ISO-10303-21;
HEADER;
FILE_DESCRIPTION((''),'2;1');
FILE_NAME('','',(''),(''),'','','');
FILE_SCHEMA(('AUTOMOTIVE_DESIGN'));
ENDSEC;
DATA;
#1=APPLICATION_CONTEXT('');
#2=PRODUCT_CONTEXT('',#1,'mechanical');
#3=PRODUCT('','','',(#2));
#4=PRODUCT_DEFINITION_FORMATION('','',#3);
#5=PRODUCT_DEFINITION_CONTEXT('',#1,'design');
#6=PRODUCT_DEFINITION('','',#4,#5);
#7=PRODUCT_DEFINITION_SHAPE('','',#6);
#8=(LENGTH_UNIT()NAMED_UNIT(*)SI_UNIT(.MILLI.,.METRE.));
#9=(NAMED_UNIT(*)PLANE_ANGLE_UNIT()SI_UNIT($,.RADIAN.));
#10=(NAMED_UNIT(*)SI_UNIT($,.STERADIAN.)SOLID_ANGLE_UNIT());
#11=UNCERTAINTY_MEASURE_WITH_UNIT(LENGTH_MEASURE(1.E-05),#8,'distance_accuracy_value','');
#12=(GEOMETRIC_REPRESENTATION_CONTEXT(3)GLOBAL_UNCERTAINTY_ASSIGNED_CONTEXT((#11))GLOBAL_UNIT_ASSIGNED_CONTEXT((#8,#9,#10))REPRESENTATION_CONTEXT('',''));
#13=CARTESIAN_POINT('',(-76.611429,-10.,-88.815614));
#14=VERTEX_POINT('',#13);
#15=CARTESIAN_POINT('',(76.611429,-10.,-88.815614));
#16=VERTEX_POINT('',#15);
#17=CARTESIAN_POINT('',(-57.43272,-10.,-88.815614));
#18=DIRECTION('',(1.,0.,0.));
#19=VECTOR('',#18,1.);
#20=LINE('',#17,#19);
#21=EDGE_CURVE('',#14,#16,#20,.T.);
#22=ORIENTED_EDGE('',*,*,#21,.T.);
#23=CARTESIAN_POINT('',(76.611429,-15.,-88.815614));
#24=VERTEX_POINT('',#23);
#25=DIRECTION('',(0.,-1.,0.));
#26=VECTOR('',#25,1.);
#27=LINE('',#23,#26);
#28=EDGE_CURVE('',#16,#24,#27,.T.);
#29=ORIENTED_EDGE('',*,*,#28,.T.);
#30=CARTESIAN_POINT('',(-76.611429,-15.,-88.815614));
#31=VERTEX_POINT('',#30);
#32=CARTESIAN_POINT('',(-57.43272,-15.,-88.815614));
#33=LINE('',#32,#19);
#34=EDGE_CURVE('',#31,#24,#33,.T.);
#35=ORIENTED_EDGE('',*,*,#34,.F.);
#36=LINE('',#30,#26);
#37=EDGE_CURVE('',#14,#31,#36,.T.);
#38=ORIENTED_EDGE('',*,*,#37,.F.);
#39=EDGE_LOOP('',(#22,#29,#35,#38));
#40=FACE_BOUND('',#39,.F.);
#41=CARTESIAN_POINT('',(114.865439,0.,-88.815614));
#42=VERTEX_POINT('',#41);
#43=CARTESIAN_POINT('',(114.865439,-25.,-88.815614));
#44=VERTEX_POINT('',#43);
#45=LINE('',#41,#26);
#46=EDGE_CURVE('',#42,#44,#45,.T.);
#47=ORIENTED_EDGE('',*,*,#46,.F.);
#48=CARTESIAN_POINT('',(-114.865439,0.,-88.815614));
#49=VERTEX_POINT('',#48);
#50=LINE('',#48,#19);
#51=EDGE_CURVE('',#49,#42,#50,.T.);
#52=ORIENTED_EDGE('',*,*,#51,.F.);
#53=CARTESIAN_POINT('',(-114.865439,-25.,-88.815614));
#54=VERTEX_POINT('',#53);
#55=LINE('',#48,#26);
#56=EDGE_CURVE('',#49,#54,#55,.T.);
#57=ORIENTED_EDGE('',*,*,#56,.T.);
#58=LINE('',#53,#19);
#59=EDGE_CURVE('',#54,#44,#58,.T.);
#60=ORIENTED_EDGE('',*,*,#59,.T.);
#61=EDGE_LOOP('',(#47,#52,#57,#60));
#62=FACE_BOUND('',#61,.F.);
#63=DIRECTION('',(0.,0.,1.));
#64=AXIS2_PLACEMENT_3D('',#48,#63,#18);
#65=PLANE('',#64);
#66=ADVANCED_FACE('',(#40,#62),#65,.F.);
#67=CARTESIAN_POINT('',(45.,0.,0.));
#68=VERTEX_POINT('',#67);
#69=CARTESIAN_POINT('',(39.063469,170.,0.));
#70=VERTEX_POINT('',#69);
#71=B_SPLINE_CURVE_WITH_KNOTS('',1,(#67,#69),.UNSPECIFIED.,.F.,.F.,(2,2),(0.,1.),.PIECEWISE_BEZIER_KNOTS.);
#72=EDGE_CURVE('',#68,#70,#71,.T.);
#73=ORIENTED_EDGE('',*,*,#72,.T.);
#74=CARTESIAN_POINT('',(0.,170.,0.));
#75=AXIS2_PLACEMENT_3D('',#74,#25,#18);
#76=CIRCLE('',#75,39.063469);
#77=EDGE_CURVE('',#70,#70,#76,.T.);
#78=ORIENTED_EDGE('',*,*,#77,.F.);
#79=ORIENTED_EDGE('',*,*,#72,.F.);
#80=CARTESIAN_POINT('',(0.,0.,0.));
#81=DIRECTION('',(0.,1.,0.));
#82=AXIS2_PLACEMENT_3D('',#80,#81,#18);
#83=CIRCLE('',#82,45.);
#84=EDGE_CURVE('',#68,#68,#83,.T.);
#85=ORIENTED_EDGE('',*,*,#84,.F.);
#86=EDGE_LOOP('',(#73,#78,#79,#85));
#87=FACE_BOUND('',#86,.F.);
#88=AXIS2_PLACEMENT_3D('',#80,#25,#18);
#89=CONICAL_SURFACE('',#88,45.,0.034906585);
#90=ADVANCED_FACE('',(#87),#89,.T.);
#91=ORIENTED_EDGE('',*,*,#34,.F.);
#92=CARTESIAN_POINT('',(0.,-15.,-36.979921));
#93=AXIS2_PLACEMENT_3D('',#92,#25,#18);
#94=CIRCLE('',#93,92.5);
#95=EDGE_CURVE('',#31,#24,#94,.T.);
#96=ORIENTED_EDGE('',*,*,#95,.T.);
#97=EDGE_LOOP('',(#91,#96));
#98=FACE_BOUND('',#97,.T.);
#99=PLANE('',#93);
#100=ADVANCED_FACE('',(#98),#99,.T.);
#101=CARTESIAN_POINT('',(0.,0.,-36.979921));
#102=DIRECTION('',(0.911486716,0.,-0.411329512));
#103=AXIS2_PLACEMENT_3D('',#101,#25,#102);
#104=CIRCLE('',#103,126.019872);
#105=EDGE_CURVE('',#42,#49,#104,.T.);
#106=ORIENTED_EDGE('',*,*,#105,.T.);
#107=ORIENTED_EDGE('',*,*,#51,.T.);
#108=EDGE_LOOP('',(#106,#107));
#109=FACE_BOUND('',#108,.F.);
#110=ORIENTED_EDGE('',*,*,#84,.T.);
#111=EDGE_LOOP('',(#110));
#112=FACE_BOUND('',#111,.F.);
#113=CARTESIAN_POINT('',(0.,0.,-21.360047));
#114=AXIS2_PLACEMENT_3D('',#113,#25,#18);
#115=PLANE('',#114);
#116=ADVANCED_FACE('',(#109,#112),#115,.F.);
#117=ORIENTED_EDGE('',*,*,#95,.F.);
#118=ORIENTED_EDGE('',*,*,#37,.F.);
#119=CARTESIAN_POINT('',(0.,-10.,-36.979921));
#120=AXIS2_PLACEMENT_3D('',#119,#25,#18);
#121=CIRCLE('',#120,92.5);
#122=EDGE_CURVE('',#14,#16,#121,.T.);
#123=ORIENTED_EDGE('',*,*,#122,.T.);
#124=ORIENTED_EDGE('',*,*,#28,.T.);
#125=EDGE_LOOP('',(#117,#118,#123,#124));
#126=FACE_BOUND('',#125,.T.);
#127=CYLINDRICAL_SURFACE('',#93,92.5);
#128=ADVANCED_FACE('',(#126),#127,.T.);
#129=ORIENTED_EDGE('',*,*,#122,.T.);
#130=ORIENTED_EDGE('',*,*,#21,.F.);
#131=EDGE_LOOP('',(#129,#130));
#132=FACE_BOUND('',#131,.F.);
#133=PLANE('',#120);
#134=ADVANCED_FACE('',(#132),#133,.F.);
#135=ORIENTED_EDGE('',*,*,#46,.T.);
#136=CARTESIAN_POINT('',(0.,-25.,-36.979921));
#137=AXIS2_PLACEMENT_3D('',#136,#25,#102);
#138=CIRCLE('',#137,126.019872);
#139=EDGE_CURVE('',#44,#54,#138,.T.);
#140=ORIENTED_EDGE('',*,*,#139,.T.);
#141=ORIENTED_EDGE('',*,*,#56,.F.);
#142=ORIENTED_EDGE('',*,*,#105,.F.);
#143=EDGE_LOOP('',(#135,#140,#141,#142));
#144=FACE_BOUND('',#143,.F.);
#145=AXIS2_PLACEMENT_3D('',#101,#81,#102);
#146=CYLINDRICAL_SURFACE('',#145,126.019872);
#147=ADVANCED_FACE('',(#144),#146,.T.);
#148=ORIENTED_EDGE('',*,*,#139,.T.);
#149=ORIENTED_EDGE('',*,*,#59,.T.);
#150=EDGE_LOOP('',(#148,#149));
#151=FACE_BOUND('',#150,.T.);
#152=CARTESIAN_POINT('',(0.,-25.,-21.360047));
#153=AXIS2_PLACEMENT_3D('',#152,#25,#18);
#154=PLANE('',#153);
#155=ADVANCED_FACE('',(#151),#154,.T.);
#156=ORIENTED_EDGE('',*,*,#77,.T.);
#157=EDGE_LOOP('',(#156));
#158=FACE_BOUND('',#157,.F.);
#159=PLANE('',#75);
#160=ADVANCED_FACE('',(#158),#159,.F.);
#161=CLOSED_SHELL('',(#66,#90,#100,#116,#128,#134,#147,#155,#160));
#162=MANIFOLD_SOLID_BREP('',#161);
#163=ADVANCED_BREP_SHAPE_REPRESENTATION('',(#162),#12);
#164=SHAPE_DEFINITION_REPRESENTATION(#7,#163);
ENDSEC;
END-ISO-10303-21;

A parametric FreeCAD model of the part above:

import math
import FreeCAD as App
import Part
import Sketcher
from FreeCAD import Vector
Q = App.Units.Quantity

doc = App.newDocument("Part")
body = doc.addObject("PartDesign::Body", "Body")

# Sketch on XZ plane
sketch1 = body.newObject("Sketcher::SketchObject", "Sketch")
sketch1.AttachmentSupport = (doc.getObject("XZ_Plane"), [""])
sketch1.MapMode = "FlatFace"
sketch1.addGeometry(Part.Circle(Vector(0, 0, 0), Vector(0, 0, 1), 45), False)
sketch1.addConstraint(Sketcher.Constraint("Coincident", 0, 3, -1, 1))
sketch1.addConstraint(Sketcher.Constraint("Diameter", 0, Q("90 mm")))
pad1 = body.newObject("PartDesign::Pad", "Pad")
pad1.Profile = sketch1
pad1.Length = 170
pad1.Reversed = True
pad1.TaperAngle = -2

# Sketch on XZ plane
sketch2 = body.newObject("Sketcher::SketchObject", "Sketch001")
sketch2.AttachmentSupport = (doc.getObject("XZ_Plane"), [""])
sketch2.MapMode = "FlatFace"
sketch2.addGeometry(Part.LineSegment(Vector(-114.865439, -88.815614, 0), Vector(114.865439, -88.815614, 0)), False)
sketch2.addGeometry(Part.ArcOfCircle(Part.Circle(Vector(0, -36.979921, 0), Vector(0, 0, 1), 126.019872), math.radians(-24.28838), math.radians(204.28838)), False)
sketch2.addConstraint(Sketcher.Constraint("Coincident", 0, 1, 1, 2))
sketch2.addConstraint(Sketcher.Constraint("Coincident", 1, 1, 0, 2))
sketch2.addConstraint(Sketcher.Constraint("Horizontal", 0))
sketch2.addConstraint(Sketcher.Constraint("PointOnObject", 1, 3, -2))
sketch2.addConstraint(Sketcher.Constraint("Radius", 1, Q("126.019872 mm")))
sketch2.addConstraint(Sketcher.Constraint("DistanceX", 0, 1, 0, 2, Q("229.730878 mm")))
sketch2.addConstraint(Sketcher.Constraint("DistanceY", 1, 3, -1, 1, Q("36.979921 mm")))
pad2 = body.newObject("PartDesign::Pad", "Pad001")
pad2.Profile = sketch2
pad2.Length = 25

# Sketch on XZ plane
sketch3 = body.newObject("Sketcher::SketchObject", "Sketch002")
sketch3.AttachmentSupport = (doc.getObject("XZ_Plane"), [""])
sketch3.MapMode = "FlatFace"
sketch3.AttachmentOffset = App.Placement(Vector(0, 0, 15), App.Rotation())
sketch3.addGeometry(Part.Circle(Vector(0, -36.979921, 0), Vector(0, 0, 1), 92.5), False)
sketch3.addConstraint(Sketcher.Constraint("PointOnObject", 0, 3, -2))
sketch3.addConstraint(Sketcher.Constraint("Diameter", 0, Q("185 mm")))
sketch3.addConstraint(Sketcher.Constraint("DistanceY", 0, 3, -1, 1, Q("36.979921 mm")))
pad3 = body.newObject("PartDesign::Pad", "Pad002")
pad3.Profile = sketch3
pad3.Length = 5
pad3.Reversed = True

doc.recompute()
